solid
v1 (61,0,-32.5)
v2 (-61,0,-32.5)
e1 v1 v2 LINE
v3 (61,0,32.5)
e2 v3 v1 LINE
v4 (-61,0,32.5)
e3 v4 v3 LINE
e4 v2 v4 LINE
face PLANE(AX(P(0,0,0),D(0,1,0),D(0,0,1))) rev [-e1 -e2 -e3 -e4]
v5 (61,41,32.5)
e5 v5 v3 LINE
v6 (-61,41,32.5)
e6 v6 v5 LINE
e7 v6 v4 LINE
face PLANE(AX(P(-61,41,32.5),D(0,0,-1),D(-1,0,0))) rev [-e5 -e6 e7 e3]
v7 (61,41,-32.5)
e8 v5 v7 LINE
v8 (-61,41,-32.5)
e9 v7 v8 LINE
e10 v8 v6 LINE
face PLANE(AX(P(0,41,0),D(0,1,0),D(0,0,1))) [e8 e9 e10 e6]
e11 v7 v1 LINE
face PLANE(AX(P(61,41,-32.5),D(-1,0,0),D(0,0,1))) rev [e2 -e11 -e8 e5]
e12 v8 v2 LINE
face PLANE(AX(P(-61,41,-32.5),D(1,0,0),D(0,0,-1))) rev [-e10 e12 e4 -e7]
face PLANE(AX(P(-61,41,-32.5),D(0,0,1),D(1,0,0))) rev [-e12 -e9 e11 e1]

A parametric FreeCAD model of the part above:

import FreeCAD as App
import Part
import Sketcher


def add_polygon(sketch, points):
    """Adds a closed chain of lines whose ends are joined by coincident constraints."""
    first, n = sketch.GeometryCount, len(points)
    for a, b in zip(points, points[1:] + points[:1]):
        sketch.addGeometry(Part.LineSegment(App.Vector(*a, 0), App.Vector(*b, 0)), False)
    for i in range(n):
        sketch.addConstraint(Sketcher.Constraint("Coincident", first + i, 2, first + (i + 1) % n, 1))

doc = App.newDocument("Part")
body = doc.addObject("PartDesign::Body", "Body")

# Sketch on XZ plane
sketch1 = doc.addObject("Sketcher::SketchObject", "Sketch")
body.addObject(sketch1)
sketch1.AttachmentSupport = (doc.XZ_Plane, [""])
sketch1.MapMode = "FlatFace"
add_polygon(sketch1, [(-61, -32), (-61, 32), (61, 32), (61, -32)])  # lines 0-3
sketch1.addConstraint([
    Sketcher.Constraint("Vertical", 0),
    Sketcher.Constraint("Horizontal", 1),
    Sketcher.Constraint("Vertical", 2),
    Sketcher.Constraint("Horizontal", 3),
    Sketcher.Constraint("Symmetric", 0, 2, 2, 2, -1, 1),
    Sketcher.Constraint("DistanceX", 1, 1, 1, 2, 122.0),
    Sketcher.Constraint("DistanceY", 0, 1, 0, 2, 65.0),
])
pad1 = doc.addObject("PartDesign::Pad", "Pad")
body.addObject(pad1)
pad1.Profile = sketch1
pad1.Length = 41
pad1.Reversed = True

doc.recompute()
